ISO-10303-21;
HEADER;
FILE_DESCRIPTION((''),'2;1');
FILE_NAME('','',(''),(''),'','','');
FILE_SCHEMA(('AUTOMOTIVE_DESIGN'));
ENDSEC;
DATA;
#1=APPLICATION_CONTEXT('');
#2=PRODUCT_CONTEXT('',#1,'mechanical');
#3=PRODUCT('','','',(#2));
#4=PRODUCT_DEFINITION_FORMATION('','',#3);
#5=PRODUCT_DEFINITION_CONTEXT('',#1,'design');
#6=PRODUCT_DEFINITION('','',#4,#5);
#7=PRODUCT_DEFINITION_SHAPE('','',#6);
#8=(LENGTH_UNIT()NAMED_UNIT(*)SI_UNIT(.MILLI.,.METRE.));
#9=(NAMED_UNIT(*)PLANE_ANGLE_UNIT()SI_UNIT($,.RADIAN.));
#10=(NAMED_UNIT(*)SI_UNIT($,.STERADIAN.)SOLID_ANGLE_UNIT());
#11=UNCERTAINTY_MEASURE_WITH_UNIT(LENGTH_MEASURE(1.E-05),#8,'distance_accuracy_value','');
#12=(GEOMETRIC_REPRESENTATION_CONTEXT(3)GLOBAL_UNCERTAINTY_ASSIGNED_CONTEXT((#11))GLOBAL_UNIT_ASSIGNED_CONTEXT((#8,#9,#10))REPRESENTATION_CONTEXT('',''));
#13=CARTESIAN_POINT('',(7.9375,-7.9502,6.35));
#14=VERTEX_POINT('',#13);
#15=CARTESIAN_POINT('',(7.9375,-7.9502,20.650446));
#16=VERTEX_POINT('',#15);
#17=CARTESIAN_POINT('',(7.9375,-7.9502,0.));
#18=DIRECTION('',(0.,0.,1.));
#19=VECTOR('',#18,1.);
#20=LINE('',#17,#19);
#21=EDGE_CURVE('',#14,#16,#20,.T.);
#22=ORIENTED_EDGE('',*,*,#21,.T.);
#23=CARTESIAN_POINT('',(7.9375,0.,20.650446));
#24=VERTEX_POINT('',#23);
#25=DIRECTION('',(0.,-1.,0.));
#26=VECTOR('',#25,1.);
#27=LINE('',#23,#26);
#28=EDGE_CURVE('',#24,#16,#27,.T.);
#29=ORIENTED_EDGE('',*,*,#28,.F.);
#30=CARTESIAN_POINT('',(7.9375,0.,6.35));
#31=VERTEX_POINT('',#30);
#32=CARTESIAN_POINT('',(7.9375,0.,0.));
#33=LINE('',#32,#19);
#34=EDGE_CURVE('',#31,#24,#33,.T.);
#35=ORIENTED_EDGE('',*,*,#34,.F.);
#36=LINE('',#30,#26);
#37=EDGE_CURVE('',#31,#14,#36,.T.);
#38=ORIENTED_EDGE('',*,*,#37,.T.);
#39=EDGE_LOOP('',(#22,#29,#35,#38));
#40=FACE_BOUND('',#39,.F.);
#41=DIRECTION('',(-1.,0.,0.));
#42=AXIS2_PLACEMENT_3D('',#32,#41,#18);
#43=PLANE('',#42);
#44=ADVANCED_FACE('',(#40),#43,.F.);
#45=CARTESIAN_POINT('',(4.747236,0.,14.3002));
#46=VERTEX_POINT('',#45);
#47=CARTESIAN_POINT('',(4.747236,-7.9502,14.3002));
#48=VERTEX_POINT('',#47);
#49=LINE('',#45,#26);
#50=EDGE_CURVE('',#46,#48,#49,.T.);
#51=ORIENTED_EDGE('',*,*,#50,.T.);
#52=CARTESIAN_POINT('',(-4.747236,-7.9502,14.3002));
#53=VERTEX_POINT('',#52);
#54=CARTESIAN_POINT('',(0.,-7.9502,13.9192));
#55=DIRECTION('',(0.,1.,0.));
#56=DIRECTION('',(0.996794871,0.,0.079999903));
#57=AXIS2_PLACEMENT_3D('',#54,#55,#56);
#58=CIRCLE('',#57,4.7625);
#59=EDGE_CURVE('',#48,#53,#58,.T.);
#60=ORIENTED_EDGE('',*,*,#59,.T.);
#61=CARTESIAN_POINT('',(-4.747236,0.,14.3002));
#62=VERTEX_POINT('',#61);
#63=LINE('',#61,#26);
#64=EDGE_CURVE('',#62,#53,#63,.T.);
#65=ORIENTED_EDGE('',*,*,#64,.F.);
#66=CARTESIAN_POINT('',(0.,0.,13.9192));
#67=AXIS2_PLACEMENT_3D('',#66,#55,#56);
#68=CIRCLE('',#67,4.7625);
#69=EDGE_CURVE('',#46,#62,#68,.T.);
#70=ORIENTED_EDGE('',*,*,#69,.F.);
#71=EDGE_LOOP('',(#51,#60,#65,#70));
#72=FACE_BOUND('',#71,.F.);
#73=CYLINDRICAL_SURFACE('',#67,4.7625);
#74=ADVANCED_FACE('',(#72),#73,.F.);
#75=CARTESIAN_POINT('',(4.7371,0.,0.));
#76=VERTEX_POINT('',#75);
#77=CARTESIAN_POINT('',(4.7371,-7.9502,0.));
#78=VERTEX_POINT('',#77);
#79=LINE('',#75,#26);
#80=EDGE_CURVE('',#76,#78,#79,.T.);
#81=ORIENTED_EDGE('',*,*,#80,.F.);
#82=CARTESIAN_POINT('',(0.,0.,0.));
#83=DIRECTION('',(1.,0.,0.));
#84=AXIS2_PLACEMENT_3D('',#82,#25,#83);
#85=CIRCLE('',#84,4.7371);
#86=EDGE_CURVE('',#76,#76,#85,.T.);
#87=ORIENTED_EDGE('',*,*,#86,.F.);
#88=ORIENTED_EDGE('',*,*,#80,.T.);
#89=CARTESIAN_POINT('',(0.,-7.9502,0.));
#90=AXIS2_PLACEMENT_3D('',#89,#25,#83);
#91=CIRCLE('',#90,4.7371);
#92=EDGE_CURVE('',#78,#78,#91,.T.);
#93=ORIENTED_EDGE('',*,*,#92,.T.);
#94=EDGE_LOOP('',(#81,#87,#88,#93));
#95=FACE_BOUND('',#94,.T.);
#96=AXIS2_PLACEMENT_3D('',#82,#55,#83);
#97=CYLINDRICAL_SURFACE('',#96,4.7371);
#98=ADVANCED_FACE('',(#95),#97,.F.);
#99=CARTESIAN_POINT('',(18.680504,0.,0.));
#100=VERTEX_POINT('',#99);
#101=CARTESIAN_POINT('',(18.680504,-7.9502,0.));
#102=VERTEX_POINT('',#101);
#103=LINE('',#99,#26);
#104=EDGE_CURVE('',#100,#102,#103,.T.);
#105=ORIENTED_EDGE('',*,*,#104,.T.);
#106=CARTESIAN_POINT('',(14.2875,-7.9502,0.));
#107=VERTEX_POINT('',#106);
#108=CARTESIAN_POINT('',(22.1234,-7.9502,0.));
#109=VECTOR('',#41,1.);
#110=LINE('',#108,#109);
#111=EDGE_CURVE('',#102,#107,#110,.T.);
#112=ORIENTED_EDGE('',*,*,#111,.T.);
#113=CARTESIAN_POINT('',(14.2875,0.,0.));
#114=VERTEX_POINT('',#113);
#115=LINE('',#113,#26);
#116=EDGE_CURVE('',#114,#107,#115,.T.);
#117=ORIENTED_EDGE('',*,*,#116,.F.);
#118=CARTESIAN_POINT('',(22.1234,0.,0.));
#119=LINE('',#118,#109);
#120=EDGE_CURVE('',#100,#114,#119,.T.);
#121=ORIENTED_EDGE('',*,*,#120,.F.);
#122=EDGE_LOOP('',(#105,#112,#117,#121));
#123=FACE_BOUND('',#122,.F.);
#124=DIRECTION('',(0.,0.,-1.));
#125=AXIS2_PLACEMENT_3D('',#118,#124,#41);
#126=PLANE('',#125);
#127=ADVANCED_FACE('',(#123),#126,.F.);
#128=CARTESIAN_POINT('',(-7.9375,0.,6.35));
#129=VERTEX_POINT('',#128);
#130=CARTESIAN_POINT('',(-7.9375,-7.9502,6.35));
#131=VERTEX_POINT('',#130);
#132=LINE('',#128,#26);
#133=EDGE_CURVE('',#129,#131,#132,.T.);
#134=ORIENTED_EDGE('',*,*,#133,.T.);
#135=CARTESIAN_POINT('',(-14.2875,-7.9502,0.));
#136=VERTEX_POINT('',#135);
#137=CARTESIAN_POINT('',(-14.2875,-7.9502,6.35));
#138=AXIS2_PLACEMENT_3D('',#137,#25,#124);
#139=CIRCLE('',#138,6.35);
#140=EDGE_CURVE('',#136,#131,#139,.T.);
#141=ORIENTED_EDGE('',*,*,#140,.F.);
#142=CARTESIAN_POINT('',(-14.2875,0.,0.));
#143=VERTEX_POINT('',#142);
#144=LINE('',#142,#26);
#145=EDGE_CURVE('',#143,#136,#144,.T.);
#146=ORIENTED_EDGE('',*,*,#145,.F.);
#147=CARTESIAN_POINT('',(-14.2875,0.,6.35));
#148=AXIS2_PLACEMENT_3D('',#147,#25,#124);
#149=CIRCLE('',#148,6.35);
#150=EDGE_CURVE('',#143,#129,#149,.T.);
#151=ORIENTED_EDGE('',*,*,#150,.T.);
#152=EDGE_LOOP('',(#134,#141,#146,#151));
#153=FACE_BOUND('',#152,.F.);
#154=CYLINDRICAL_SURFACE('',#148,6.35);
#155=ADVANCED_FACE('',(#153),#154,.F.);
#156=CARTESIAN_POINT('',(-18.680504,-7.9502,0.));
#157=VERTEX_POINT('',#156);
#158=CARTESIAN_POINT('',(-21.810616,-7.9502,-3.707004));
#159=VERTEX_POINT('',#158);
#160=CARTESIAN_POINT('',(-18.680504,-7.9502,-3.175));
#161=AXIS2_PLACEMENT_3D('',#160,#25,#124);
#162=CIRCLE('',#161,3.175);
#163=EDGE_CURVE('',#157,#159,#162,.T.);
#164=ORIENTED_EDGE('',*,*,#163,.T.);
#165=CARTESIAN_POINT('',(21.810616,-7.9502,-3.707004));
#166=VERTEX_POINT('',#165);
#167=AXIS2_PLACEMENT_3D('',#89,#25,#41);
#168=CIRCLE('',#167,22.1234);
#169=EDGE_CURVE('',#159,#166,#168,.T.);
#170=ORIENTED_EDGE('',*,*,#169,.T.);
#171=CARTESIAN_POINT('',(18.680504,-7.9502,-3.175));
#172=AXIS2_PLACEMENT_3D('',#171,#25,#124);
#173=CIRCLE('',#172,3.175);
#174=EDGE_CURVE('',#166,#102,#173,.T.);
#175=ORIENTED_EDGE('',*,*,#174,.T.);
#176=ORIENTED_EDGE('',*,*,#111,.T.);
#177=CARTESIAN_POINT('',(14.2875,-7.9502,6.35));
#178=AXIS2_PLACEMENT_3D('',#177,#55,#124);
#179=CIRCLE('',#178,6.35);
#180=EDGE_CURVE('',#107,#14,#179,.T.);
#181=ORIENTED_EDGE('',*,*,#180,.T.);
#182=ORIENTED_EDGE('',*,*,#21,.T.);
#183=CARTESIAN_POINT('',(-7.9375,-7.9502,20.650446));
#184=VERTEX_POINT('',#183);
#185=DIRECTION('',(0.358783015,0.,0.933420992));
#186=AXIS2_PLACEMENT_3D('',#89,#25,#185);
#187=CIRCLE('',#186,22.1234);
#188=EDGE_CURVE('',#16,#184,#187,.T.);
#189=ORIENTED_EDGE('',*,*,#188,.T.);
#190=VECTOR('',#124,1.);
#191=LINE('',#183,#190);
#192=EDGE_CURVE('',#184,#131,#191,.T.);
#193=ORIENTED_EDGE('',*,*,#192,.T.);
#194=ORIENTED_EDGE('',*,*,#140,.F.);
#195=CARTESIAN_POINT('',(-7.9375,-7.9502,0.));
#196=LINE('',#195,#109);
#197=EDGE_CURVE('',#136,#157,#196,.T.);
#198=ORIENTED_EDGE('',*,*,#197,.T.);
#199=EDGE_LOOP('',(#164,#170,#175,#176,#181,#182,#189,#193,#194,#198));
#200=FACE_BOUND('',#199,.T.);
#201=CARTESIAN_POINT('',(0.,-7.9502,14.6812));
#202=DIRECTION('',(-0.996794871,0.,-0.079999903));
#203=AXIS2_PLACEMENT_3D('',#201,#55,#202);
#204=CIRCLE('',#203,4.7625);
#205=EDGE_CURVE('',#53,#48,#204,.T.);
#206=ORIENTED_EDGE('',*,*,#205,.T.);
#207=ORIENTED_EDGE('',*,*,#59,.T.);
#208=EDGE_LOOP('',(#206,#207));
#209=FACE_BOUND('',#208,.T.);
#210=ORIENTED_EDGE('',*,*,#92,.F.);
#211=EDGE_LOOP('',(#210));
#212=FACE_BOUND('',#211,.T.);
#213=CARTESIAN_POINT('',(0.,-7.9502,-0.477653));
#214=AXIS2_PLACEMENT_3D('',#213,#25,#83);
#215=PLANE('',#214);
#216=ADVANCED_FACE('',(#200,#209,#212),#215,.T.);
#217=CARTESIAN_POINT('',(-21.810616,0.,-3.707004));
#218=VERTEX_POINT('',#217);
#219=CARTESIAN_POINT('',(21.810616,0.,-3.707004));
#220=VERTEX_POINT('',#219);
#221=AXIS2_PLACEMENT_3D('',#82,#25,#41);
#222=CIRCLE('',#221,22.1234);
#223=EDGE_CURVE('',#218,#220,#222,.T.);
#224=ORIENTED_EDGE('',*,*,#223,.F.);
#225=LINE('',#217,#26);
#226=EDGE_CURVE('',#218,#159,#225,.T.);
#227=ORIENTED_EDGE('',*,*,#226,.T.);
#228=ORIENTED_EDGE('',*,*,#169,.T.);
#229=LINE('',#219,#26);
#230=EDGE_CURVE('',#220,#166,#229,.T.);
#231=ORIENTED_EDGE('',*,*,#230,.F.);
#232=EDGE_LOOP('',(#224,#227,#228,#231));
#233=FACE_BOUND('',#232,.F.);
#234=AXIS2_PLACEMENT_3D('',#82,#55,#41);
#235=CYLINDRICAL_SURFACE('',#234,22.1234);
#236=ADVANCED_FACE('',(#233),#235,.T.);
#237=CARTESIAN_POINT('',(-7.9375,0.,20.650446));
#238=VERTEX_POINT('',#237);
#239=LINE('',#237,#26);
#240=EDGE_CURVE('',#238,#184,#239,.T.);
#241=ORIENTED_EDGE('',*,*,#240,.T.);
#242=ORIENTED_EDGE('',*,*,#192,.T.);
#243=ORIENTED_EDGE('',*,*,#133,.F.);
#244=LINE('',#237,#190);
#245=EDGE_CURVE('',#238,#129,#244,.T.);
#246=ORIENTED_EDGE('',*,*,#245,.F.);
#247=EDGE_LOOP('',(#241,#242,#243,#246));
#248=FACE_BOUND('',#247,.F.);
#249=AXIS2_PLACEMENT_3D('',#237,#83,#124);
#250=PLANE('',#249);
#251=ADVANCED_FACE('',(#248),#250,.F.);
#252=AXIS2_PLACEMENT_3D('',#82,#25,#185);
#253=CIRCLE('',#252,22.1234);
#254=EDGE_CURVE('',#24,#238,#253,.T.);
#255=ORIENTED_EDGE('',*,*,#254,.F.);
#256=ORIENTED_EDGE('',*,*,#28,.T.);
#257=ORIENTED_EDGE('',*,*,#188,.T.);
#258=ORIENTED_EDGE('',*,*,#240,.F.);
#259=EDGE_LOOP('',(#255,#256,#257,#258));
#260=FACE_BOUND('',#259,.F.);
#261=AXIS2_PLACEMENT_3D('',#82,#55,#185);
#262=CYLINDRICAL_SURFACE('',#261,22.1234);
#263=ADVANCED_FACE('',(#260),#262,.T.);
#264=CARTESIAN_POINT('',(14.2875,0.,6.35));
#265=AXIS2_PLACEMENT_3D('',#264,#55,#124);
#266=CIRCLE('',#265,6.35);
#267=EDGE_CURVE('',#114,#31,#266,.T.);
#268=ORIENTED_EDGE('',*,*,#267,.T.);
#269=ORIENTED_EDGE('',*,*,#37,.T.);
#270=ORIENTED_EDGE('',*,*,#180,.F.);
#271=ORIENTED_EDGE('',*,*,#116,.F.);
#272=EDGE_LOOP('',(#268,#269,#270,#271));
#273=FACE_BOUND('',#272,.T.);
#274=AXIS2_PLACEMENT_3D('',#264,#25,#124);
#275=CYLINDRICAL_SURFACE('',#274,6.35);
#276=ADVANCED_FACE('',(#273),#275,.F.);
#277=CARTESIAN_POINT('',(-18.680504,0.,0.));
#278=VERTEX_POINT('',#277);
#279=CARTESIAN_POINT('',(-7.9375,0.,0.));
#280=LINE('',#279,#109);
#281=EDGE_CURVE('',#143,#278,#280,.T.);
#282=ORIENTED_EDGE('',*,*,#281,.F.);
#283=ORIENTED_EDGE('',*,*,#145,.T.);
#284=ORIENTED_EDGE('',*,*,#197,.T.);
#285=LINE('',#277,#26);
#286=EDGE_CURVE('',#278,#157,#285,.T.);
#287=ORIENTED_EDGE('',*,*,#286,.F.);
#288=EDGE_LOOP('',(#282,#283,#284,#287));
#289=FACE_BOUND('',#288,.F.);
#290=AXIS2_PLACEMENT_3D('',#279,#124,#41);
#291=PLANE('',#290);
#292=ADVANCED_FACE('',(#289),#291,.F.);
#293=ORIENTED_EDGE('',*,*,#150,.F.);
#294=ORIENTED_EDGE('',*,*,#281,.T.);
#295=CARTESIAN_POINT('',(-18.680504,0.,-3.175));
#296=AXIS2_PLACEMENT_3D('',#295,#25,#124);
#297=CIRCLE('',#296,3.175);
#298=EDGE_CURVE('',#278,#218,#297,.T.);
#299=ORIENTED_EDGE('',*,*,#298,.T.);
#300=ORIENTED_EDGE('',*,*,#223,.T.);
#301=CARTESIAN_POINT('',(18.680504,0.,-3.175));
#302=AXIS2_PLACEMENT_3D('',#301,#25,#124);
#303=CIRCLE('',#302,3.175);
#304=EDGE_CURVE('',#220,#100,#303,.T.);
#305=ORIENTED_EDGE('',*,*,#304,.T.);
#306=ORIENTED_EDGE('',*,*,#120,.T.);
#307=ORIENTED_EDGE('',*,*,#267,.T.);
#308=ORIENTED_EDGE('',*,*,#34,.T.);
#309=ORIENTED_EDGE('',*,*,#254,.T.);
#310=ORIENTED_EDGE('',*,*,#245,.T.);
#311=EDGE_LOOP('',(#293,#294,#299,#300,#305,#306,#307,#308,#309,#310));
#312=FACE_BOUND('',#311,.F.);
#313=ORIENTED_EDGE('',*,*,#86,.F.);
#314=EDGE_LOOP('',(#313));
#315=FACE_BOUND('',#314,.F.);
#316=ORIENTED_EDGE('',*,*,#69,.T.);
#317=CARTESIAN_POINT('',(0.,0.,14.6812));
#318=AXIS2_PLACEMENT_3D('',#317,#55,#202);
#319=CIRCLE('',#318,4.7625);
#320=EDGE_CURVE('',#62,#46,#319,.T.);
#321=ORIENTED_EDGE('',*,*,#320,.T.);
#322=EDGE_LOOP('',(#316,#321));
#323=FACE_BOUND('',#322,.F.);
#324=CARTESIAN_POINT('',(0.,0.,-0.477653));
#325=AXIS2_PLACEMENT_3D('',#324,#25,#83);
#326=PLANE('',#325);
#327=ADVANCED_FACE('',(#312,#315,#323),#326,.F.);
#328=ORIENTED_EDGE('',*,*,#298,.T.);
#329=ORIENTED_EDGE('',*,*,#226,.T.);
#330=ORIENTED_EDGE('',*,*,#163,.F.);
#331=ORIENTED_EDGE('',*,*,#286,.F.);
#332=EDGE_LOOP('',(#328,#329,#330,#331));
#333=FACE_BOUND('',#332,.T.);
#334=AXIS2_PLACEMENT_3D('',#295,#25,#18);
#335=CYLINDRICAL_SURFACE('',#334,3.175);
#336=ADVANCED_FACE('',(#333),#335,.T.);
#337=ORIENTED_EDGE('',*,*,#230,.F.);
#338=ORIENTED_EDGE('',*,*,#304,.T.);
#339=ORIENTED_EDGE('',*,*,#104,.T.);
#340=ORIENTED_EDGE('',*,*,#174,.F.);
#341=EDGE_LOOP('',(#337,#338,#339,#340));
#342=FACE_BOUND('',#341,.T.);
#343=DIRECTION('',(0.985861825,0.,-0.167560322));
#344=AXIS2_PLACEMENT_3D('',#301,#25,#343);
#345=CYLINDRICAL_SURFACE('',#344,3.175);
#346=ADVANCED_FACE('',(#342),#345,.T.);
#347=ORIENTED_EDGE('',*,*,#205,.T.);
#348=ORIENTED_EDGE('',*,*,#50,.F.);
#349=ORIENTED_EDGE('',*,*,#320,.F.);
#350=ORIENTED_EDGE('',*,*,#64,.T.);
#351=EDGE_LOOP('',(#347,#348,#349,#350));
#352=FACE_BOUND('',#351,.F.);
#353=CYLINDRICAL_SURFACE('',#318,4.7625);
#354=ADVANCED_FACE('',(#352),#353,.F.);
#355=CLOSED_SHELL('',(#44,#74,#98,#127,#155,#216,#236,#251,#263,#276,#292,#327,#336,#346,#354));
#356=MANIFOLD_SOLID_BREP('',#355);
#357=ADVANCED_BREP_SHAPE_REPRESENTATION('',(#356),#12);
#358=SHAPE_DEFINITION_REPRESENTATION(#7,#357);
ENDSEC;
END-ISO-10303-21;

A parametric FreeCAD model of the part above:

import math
import FreeCAD as App
import Part
import Sketcher
Q = App.Units.Quantity


def edges_at(feature, points):
    """Names of the edges that pass closest to the given points."""
    edges = feature.Shape.Edges
    near = lambda p: min(range(len(edges)), key=lambda i: edges[i].distToShape(Part.Vertex(*p))[0])
    return sorted({f"Edge{near(p) + 1}" for p in points})

doc = App.newDocument("Part")
body = doc.addObject("PartDesign::Body", "Body")

sketch1 = body.newObject("Sketcher::SketchObject", "Sketch")
sketch1.AttachmentSupport = (doc.getObject("XZ_Plane"), [""])
sketch1.MapMode = "FlatFace"
sketch1.addGeometry([
    Part.LineSegment(App.Vector(-7.9, 0, 0), App.Vector(-22.1, 0, 0)),
    Part.ArcOfCircle(Part.Circle(App.Vector(0, 0, 0), App.Vector(0, 0, 1), 22.1), math.radians(180), math.radians(360)),
    Part.LineSegment(App.Vector(22.1, 0, 0), App.Vector(7.9, 0, 0)),
    Part.LineSegment(App.Vector(7.9, 0, 0), App.Vector(7.9, 20.7, 0)),
    Part.ArcOfCircle(Part.Circle(App.Vector(0, 0, 0), App.Vector(0, 0, 1), 22.1), math.radians(69), math.radians(111)),
    Part.LineSegment(App.Vector(-7.9, 20.7, 0), App.Vector(-7.9, 0, 0)),
    Part.Circle(App.Vector(0, 0, 0), App.Vector(0, 0, 1), 4.7),
    Part.ArcOfCircle(Part.Circle(App.Vector(0, 13.9, 0), App.Vector(0, 0, 1), 4.8), math.radians(175), math.radians(365)),
    Part.ArcOfCircle(Part.Circle(App.Vector(0, 14.7, 0), App.Vector(0, 0, 1), 4.8), math.radians(-5), math.radians(185)),
], False)
sketch1.addConstraint([
    Sketcher.Constraint("Coincident", 0, 2, 1, 1),
    Sketcher.Constraint("Coincident", 1, 2, 2, 1),
    Sketcher.Constraint("Coincident", 2, 2, 3, 1),
    Sketcher.Constraint("Coincident", 3, 2, 4, 1),
    Sketcher.Constraint("Coincident", 4, 2, 5, 1),
    Sketcher.Constraint("Coincident", 5, 2, 0, 1),
    Sketcher.Constraint("Coincident", 7, 1, 8, 2),
    Sketcher.Constraint("Coincident", 8, 1, 7, 2),
    Sketcher.Constraint("Horizontal", 0),
    Sketcher.Constraint("Horizontal", 2),
    Sketcher.Constraint("Vertical", 3),
    Sketcher.Constraint("Vertical", 5),
    Sketcher.Constraint("Coincident", 1, 3, -1, 1),
    Sketcher.Constraint("Coincident", 4, 3, -1, 1),
    Sketcher.Constraint("Coincident", 6, 3, -1, 1),
    Sketcher.Constraint("Equal", 1, 4),
    Sketcher.Constraint("Equal", 7, 8),
    Sketcher.Constraint("Symmetric", 2, 2, 5, 2, -1, 1),
    Sketcher.Constraint("Symmetric", 7, 1, 8, 1, -2),
    Sketcher.Constraint("PointOnObject", 0, 2, -1),
    Sketcher.Constraint("Diameter", 6, Q("0.373 in")),
    Sketcher.Constraint("Radius", 1, Q("0.871 in")),
    Sketcher.Constraint("Radius", 7, Q("0.1875 in")),
    Sketcher.Constraint("DistanceY", 7, 3, 8, 3, Q("0.03 in")),
    Sketcher.Constraint("DistanceX", 0, 2, 0, 1, Q("0.5585 in")),
    Sketcher.Constraint("DistanceY", -1, 1, 7, 3, Q("0.548 in")),
])
pad1 = body.newObject("PartDesign::Pad", "Pad")
pad1.Profile = sketch1
pad1.Length = Q("0.313 in")
doc.recompute()

fillet = body.newObject("PartDesign::Fillet", "Fillet")
fillet.Base = (pad1, edges_at(pad1, [(-7.938, -3.975, 0), (7.938, -3.975, 0)]))
fillet.Radius = Q("0.25 in")
doc.recompute()

fillet2 = body.newObject("PartDesign::Fillet", "Fillet001")
fillet2.Base = (fillet, edges_at(fillet, [(22.123, -3.975, 0), (-22.123, -3.975, 0)]))
fillet2.Radius = Q("0.125 in")

doc.recompute()
